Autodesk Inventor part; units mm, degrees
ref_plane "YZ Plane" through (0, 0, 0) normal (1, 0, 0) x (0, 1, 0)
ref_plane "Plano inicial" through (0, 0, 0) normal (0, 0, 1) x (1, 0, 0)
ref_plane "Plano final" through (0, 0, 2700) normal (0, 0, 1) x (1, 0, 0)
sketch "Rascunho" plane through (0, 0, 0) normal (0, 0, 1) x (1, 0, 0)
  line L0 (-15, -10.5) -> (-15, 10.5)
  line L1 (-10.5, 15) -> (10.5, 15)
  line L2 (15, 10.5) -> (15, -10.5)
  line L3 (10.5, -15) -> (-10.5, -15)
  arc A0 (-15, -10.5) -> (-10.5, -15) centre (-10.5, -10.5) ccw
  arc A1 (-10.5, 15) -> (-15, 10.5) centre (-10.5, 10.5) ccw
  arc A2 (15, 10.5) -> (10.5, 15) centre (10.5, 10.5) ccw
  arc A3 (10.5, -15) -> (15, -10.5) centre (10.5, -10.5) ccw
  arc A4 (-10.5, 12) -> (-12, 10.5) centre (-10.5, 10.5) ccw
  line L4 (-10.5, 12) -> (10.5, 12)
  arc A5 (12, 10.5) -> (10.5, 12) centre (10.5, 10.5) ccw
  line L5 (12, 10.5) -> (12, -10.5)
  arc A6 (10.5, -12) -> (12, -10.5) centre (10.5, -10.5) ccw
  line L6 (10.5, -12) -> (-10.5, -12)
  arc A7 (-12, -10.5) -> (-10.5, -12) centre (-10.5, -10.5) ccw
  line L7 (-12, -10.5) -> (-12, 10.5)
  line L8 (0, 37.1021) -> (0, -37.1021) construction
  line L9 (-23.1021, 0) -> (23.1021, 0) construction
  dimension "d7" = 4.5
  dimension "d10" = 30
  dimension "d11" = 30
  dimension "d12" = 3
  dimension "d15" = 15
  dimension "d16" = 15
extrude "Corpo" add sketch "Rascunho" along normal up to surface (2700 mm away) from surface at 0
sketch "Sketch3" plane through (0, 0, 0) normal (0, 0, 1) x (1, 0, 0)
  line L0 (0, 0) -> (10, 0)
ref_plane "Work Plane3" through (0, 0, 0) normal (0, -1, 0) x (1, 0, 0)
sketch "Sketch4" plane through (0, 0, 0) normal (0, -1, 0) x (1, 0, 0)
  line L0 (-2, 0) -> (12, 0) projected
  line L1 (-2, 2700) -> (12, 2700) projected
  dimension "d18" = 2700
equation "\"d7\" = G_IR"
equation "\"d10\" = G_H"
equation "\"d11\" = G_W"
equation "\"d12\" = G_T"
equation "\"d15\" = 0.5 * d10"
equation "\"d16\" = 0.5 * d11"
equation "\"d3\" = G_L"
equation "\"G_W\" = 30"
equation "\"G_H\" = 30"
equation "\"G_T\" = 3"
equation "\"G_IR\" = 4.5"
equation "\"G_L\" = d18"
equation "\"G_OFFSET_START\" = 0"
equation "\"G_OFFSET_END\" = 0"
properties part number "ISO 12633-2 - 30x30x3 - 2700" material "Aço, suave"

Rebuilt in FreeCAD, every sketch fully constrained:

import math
import FreeCAD as App
import Part
import Sketcher
from FreeCAD import Vector

doc = App.newDocument("Part")
body = doc.addObject("PartDesign::Body", "Body")

# Sketch on XY plane
sketch1 = body.newObject("Sketcher::SketchObject", "Sketch")
sketch1.AttachmentSupport = (doc.getObject("XY_Plane"), [""])
sketch1.MapMode = "FlatFace"
sketch1.addGeometry([
    Part.LineSegment(Vector(-15, 10.5, 0), Vector(-15, -10.5, 0)),  # 0
    Part.ArcOfCircle(Part.Circle(Vector(-10.5, -10.5, 0), Vector(0, 0, 1), 4.5), math.radians(180), math.radians(270)),  # 1
    Part.LineSegment(Vector(-10.5, -15, 0), Vector(10.5, -15, 0)),  # 2
    Part.ArcOfCircle(Part.Circle(Vector(10.5, -10.5, 0), Vector(0, 0, 1), 4.5), math.radians(-90), math.radians(0)),  # 3
    Part.LineSegment(Vector(15, -10.5, 0), Vector(15, 10.5, 0)),  # 4
    Part.ArcOfCircle(Part.Circle(Vector(10.5, 10.5, 0), Vector(0, 0, 1), 4.5), math.radians(0), math.radians(90)),  # 5
    Part.LineSegment(Vector(10.5, 15, 0), Vector(-10.5, 15, 0)),  # 6
    Part.ArcOfCircle(Part.Circle(Vector(-10.5, 10.5, 0), Vector(0, 0, 1), 4.5), math.radians(90), math.radians(180)),  # 7
    Part.ArcOfCircle(Part.Circle(Vector(-10.5, 10.5, 0), Vector(0, 0, 1), 1.5), math.radians(90), math.radians(180)),  # 8
    Part.LineSegment(Vector(-10.5, 12, 0), Vector(10.5, 12, 0)),  # 9
    Part.ArcOfCircle(Part.Circle(Vector(10.5, 10.5, 0), Vector(0, 0, 1), 1.5), math.radians(0), math.radians(90)),  # 10
    Part.LineSegment(Vector(12, 10.5, 0), Vector(12, -10.5, 0)),  # 11
    Part.ArcOfCircle(Part.Circle(Vector(10.5, -10.5, 0), Vector(0, 0, 1), 1.5), math.radians(-90), math.radians(0)),  # 12
    Part.LineSegment(Vector(10.5, -12, 0), Vector(-10.5, -12, 0)),  # 13
    Part.ArcOfCircle(Part.Circle(Vector(-10.5, -10.5, 0), Vector(0, 0, 1), 1.5), math.radians(180), math.radians(270)),  # 14
    Part.LineSegment(Vector(-12, -10.5, 0), Vector(-12, 10.5, 0)),  # 15
], False)
sketch1.addConstraint([
    Sketcher.Constraint("Tangent", 0, 2, 1, 1),
    Sketcher.Constraint("Tangent", 1, 2, 2, 1),
    Sketcher.Constraint("Tangent", 2, 2, 3, 1),
    Sketcher.Constraint("Tangent", 3, 2, 4, 1),
    Sketcher.Constraint("Tangent", 4, 2, 5, 1),
    Sketcher.Constraint("Tangent", 5, 2, 6, 1),
    Sketcher.Constraint("Tangent", 6, 2, 7, 1),
    Sketcher.Constraint("Tangent", 7, 2, 0, 1),
    Sketcher.Constraint("Tangent", 8, 1, 9, 1),
    Sketcher.Constraint("Tangent", 9, 2, 10, 2),
    Sketcher.Constraint("Tangent", 10, 1, 11, 1),
    Sketcher.Constraint("Tangent", 11, 2, 12, 2),
    Sketcher.Constraint("Tangent", 12, 1, 13, 1),
    Sketcher.Constraint("Tangent", 13, 2, 14, 2),
    Sketcher.Constraint("Tangent", 14, 1, 15, 1),
    Sketcher.Constraint("Tangent", 15, 2, 8, 2),
    Sketcher.Constraint("Vertical", 0),
    Sketcher.Constraint("Horizontal", 2),
    Sketcher.Constraint("Vertical", 4),
    Sketcher.Constraint("Horizontal", 6),
    Sketcher.Constraint("Horizontal", 9),
    Sketcher.Constraint("Vertical", 11),
    Sketcher.Constraint("Horizontal", 13),
    Sketcher.Constraint("Vertical", 15),
    Sketcher.Constraint("Coincident", 8, 3, 7, 3),
    Sketcher.Constraint("Coincident", 10, 3, 5, 3),
    Sketcher.Constraint("Coincident", 12, 3, 3, 3),
    Sketcher.Constraint("Equal", 1, 3),
    Sketcher.Constraint("Equal", 3, 5),
    Sketcher.Constraint("Equal", 5, 7),
    Sketcher.Constraint("Equal", 12, 14),
    Sketcher.Constraint("Symmetric", 1, 3, 5, 3, -1, 1),
    Sketcher.Constraint("Equal", 13, 0),
    Sketcher.Constraint("Radius", 1, 4.5),
    Sketcher.Constraint("Radius", 8, 1.5),
    Sketcher.Constraint("DistanceX", 0, 2, -1, 1, 15.0),
])
pad1 = body.newObject("PartDesign::Pad", "Pad")
pad1.Profile = sketch1
pad1.Length = 2700

doc.recompute()
